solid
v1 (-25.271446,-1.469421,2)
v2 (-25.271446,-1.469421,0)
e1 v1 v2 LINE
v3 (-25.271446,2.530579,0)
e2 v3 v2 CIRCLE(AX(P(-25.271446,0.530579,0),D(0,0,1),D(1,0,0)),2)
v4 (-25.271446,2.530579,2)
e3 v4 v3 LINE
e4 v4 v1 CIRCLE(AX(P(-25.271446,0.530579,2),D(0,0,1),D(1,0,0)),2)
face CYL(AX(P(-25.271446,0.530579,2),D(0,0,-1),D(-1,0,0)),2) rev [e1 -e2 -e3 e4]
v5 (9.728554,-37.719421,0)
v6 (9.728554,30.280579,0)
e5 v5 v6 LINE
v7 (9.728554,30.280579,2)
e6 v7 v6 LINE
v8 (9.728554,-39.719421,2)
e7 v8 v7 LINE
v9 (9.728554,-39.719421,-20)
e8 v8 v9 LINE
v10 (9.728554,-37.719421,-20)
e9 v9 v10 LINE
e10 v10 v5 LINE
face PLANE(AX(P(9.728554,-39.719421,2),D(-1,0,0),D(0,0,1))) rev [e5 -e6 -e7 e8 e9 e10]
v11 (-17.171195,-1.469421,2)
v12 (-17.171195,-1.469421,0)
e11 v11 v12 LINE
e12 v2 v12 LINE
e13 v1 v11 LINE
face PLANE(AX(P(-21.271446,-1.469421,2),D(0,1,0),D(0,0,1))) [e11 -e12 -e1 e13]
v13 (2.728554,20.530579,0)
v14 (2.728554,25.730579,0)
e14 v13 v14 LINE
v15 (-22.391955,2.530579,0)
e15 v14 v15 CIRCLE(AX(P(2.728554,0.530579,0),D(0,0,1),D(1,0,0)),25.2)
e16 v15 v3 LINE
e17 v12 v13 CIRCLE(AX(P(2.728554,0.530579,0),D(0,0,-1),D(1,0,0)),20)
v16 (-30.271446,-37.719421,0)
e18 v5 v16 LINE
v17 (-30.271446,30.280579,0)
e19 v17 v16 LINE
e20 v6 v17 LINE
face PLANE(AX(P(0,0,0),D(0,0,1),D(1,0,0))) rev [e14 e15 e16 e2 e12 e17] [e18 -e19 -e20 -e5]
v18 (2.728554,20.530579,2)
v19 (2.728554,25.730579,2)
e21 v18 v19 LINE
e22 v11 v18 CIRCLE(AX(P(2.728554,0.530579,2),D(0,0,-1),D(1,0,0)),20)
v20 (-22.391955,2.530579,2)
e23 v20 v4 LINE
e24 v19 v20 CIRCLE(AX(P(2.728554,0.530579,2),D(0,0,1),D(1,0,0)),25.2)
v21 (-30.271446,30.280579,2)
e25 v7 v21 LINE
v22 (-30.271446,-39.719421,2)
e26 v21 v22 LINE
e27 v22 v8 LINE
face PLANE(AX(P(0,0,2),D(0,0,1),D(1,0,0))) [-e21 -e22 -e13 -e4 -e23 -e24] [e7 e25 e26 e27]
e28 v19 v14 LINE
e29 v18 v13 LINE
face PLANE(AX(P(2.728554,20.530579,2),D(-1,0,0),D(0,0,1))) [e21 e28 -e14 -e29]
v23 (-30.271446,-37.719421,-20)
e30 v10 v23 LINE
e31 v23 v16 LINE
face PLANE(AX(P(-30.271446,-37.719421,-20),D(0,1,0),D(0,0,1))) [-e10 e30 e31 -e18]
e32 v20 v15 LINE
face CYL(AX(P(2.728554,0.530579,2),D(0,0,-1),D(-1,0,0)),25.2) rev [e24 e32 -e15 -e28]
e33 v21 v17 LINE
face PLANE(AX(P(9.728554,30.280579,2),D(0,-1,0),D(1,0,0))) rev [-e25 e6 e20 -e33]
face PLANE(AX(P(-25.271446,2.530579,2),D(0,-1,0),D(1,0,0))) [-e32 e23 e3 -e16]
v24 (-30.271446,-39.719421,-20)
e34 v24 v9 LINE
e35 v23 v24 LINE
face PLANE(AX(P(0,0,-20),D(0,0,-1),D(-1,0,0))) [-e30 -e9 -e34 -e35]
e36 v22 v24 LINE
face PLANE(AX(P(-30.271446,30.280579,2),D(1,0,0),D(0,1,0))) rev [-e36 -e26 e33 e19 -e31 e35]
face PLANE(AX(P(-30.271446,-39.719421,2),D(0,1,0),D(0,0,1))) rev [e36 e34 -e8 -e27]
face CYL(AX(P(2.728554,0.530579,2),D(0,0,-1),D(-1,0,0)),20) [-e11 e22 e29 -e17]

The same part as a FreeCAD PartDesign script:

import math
import FreeCAD as App
import Part
import Sketcher

V = App.Vector
Q = App.Units.Quantity


def add_polygon(sketch, points):
    """Adds a closed chain of lines whose ends are joined by coincident constraints."""
    first, n = sketch.GeometryCount, len(points)
    for a, b in zip(points, points[1:] + points[:1]):
        sketch.addGeometry(Part.LineSegment(App.Vector(*a, 0), App.Vector(*b, 0)), False)
    for i in range(n):
        sketch.addConstraint(Sketcher.Constraint("Coincident", first + i, 2, first + (i + 1) % n, 1))

doc = App.newDocument("Part")
body = doc.addObject("PartDesign::Body", "Body")

sketch1 = doc.addObject("Sketcher::SketchObject", "Sketch")
body.addObject(sketch1)
sketch1.AttachmentSupport = (doc.XY_Plane, [""])
sketch1.MapMode = "FlatFace"
add_polygon(sketch1, [(-30.271446, 30.280579), (-30.271446, -39.719421), (9.728554, -39.719421), (9.728554, 30.280579)])
sketch1.addGeometry(Part.LineSegment(V(-17.171195, -1.469421, 0), V(-25.271446, -1.469421, 0)), False)
sketch1.addGeometry(Part.ArcOfCircle(Part.Circle(V(-25.271446, 0.530579, 0), V(0, 0, 1), 2), math.radians(90), math.radians(270)), False)
sketch1.addGeometry(Part.LineSegment(V(-25.271446, 2.530579, 0), V(-22.391955, 2.530579, 0)), False)
sketch1.addGeometry(Part.ArcOfCircle(Part.Circle(V(2.728554, 0.530579, 0), V(0, 0, 1), 25.2), math.radians(90), math.radians(175.447929)), False)
sketch1.addGeometry(Part.LineSegment(V(2.728554, 25.730579, 0), V(2.728554, 20.530579, 0)), False)
sketch1.addGeometry(Part.ArcOfCircle(Part.Circle(V(2.728554, 0.530579, 0), V(0, 0, 1), 20), math.radians(90), math.radians(185.73917)), False)
sketch1.addConstraint(Sketcher.Constraint("Tangent", 4, 2, 5, 2))
sketch1.addConstraint(Sketcher.Constraint("Tangent", 5, 1, 6, 1))
sketch1.addConstraint(Sketcher.Constraint("Coincident", 6, 2, 7, 2))
sketch1.addConstraint(Sketcher.Constraint("Coincident", 7, 1, 8, 1))
sketch1.addConstraint(Sketcher.Constraint("Coincident", 8, 2, 9, 1))
sketch1.addConstraint(Sketcher.Constraint("Coincident", 9, 2, 4, 1))
sketch1.addConstraint(Sketcher.Constraint("Vertical", 0))
sketch1.addConstraint(Sketcher.Constraint("Horizontal", 1))
sketch1.addConstraint(Sketcher.Constraint("Vertical", 2))
sketch1.addConstraint(Sketcher.Constraint("Horizontal", 3))
sketch1.addConstraint(Sketcher.Constraint("Horizontal", 4))
sketch1.addConstraint(Sketcher.Constraint("Horizontal", 6))
sketch1.addConstraint(Sketcher.Constraint("Vertical", 8))
sketch1.addConstraint(Sketcher.Constraint("Coincident", 9, 3, 7, 3))
sketch1.addConstraint(Sketcher.Constraint("Horizontal", 5, 3, 7, 3))
sketch1.addConstraint(Sketcher.Constraint("Vertical", 9, 3, 7, 1))
sketch1.addConstraint(Sketcher.Constraint("Radius", 5, Q("2 mm")))
sketch1.addConstraint(Sketcher.Constraint("Radius", 9, Q("20 mm")))
sketch1.addConstraint(Sketcher.Constraint("Radius", 7, Q("25.2 mm")))
sketch1.addConstraint(Sketcher.Constraint("DistanceX", 1, 1, 1, 2, Q("40 mm")))
sketch1.addConstraint(Sketcher.Constraint("DistanceY", 0, 2, 0, 1, Q("70 mm")))
sketch1.addConstraint(Sketcher.Constraint("DistanceX", 5, 3, 7, 3, Q("28 mm")))
sketch1.addConstraint(Sketcher.Constraint("DistanceX", 0, 2, 5, 3, Q("5 mm")))
sketch1.addConstraint(Sketcher.Constraint("DistanceY", 0, 2, 5, 3, Q("40.25 mm")))
sketch1.addConstraint(Sketcher.Constraint("DistanceY", -1, 1, 5, 3, Q("0.530579 mm")))
sketch1.addConstraint(Sketcher.Constraint("DistanceX", 5, 3, -1, 1, Q("25.271446 mm")))
pad1 = doc.addObject("PartDesign::Pad", "Pad")
body.addObject(pad1)
pad1.Profile = sketch1
pad1.Length = 2

sketch2 = doc.addObject("Sketcher::SketchObject", "Sketch001")
body.addObject(sketch2)
sketch2.AttachmentSupport = (doc.XY_Plane, [""])
sketch2.MapMode = "FlatFace"
sketch2.AttachmentOffset = App.Placement(V(0, 0, 2), App.Rotation())
add_polygon(sketch2, [(-30.271446, -37.719421), (-30.271446, -39.719421), (9.728554, -39.719421), (9.728554, -37.719421)])
sketch2.addConstraint(Sketcher.Constraint("Vertical", 0))
sketch2.addConstraint(Sketcher.Constraint("Horizontal", 1))
sketch2.addConstraint(Sketcher.Constraint("Vertical", 2))
sketch2.addConstraint(Sketcher.Constraint("Horizontal", 3))
sketch2.addConstraint(Sketcher.Constraint("DistanceX", 1, 1, 1, 2, Q("40 mm")))
sketch2.addConstraint(Sketcher.Constraint("DistanceY", 0, 2, 0, 1, Q("2 mm")))
sketch2.addConstraint(Sketcher.Constraint("DistanceY", 0, 2, -1, 1, Q("39.719421 mm")))
sketch2.addConstraint(Sketcher.Constraint("DistanceX", 0, 2, -1, 1, Q("30.271446 mm")))
pad2 = doc.addObject("PartDesign::Pad", "Pad001")
body.addObject(pad2)
pad2.Profile = sketch2
pad2.Length = 22
pad2.Reversed = True

doc.recompute()
